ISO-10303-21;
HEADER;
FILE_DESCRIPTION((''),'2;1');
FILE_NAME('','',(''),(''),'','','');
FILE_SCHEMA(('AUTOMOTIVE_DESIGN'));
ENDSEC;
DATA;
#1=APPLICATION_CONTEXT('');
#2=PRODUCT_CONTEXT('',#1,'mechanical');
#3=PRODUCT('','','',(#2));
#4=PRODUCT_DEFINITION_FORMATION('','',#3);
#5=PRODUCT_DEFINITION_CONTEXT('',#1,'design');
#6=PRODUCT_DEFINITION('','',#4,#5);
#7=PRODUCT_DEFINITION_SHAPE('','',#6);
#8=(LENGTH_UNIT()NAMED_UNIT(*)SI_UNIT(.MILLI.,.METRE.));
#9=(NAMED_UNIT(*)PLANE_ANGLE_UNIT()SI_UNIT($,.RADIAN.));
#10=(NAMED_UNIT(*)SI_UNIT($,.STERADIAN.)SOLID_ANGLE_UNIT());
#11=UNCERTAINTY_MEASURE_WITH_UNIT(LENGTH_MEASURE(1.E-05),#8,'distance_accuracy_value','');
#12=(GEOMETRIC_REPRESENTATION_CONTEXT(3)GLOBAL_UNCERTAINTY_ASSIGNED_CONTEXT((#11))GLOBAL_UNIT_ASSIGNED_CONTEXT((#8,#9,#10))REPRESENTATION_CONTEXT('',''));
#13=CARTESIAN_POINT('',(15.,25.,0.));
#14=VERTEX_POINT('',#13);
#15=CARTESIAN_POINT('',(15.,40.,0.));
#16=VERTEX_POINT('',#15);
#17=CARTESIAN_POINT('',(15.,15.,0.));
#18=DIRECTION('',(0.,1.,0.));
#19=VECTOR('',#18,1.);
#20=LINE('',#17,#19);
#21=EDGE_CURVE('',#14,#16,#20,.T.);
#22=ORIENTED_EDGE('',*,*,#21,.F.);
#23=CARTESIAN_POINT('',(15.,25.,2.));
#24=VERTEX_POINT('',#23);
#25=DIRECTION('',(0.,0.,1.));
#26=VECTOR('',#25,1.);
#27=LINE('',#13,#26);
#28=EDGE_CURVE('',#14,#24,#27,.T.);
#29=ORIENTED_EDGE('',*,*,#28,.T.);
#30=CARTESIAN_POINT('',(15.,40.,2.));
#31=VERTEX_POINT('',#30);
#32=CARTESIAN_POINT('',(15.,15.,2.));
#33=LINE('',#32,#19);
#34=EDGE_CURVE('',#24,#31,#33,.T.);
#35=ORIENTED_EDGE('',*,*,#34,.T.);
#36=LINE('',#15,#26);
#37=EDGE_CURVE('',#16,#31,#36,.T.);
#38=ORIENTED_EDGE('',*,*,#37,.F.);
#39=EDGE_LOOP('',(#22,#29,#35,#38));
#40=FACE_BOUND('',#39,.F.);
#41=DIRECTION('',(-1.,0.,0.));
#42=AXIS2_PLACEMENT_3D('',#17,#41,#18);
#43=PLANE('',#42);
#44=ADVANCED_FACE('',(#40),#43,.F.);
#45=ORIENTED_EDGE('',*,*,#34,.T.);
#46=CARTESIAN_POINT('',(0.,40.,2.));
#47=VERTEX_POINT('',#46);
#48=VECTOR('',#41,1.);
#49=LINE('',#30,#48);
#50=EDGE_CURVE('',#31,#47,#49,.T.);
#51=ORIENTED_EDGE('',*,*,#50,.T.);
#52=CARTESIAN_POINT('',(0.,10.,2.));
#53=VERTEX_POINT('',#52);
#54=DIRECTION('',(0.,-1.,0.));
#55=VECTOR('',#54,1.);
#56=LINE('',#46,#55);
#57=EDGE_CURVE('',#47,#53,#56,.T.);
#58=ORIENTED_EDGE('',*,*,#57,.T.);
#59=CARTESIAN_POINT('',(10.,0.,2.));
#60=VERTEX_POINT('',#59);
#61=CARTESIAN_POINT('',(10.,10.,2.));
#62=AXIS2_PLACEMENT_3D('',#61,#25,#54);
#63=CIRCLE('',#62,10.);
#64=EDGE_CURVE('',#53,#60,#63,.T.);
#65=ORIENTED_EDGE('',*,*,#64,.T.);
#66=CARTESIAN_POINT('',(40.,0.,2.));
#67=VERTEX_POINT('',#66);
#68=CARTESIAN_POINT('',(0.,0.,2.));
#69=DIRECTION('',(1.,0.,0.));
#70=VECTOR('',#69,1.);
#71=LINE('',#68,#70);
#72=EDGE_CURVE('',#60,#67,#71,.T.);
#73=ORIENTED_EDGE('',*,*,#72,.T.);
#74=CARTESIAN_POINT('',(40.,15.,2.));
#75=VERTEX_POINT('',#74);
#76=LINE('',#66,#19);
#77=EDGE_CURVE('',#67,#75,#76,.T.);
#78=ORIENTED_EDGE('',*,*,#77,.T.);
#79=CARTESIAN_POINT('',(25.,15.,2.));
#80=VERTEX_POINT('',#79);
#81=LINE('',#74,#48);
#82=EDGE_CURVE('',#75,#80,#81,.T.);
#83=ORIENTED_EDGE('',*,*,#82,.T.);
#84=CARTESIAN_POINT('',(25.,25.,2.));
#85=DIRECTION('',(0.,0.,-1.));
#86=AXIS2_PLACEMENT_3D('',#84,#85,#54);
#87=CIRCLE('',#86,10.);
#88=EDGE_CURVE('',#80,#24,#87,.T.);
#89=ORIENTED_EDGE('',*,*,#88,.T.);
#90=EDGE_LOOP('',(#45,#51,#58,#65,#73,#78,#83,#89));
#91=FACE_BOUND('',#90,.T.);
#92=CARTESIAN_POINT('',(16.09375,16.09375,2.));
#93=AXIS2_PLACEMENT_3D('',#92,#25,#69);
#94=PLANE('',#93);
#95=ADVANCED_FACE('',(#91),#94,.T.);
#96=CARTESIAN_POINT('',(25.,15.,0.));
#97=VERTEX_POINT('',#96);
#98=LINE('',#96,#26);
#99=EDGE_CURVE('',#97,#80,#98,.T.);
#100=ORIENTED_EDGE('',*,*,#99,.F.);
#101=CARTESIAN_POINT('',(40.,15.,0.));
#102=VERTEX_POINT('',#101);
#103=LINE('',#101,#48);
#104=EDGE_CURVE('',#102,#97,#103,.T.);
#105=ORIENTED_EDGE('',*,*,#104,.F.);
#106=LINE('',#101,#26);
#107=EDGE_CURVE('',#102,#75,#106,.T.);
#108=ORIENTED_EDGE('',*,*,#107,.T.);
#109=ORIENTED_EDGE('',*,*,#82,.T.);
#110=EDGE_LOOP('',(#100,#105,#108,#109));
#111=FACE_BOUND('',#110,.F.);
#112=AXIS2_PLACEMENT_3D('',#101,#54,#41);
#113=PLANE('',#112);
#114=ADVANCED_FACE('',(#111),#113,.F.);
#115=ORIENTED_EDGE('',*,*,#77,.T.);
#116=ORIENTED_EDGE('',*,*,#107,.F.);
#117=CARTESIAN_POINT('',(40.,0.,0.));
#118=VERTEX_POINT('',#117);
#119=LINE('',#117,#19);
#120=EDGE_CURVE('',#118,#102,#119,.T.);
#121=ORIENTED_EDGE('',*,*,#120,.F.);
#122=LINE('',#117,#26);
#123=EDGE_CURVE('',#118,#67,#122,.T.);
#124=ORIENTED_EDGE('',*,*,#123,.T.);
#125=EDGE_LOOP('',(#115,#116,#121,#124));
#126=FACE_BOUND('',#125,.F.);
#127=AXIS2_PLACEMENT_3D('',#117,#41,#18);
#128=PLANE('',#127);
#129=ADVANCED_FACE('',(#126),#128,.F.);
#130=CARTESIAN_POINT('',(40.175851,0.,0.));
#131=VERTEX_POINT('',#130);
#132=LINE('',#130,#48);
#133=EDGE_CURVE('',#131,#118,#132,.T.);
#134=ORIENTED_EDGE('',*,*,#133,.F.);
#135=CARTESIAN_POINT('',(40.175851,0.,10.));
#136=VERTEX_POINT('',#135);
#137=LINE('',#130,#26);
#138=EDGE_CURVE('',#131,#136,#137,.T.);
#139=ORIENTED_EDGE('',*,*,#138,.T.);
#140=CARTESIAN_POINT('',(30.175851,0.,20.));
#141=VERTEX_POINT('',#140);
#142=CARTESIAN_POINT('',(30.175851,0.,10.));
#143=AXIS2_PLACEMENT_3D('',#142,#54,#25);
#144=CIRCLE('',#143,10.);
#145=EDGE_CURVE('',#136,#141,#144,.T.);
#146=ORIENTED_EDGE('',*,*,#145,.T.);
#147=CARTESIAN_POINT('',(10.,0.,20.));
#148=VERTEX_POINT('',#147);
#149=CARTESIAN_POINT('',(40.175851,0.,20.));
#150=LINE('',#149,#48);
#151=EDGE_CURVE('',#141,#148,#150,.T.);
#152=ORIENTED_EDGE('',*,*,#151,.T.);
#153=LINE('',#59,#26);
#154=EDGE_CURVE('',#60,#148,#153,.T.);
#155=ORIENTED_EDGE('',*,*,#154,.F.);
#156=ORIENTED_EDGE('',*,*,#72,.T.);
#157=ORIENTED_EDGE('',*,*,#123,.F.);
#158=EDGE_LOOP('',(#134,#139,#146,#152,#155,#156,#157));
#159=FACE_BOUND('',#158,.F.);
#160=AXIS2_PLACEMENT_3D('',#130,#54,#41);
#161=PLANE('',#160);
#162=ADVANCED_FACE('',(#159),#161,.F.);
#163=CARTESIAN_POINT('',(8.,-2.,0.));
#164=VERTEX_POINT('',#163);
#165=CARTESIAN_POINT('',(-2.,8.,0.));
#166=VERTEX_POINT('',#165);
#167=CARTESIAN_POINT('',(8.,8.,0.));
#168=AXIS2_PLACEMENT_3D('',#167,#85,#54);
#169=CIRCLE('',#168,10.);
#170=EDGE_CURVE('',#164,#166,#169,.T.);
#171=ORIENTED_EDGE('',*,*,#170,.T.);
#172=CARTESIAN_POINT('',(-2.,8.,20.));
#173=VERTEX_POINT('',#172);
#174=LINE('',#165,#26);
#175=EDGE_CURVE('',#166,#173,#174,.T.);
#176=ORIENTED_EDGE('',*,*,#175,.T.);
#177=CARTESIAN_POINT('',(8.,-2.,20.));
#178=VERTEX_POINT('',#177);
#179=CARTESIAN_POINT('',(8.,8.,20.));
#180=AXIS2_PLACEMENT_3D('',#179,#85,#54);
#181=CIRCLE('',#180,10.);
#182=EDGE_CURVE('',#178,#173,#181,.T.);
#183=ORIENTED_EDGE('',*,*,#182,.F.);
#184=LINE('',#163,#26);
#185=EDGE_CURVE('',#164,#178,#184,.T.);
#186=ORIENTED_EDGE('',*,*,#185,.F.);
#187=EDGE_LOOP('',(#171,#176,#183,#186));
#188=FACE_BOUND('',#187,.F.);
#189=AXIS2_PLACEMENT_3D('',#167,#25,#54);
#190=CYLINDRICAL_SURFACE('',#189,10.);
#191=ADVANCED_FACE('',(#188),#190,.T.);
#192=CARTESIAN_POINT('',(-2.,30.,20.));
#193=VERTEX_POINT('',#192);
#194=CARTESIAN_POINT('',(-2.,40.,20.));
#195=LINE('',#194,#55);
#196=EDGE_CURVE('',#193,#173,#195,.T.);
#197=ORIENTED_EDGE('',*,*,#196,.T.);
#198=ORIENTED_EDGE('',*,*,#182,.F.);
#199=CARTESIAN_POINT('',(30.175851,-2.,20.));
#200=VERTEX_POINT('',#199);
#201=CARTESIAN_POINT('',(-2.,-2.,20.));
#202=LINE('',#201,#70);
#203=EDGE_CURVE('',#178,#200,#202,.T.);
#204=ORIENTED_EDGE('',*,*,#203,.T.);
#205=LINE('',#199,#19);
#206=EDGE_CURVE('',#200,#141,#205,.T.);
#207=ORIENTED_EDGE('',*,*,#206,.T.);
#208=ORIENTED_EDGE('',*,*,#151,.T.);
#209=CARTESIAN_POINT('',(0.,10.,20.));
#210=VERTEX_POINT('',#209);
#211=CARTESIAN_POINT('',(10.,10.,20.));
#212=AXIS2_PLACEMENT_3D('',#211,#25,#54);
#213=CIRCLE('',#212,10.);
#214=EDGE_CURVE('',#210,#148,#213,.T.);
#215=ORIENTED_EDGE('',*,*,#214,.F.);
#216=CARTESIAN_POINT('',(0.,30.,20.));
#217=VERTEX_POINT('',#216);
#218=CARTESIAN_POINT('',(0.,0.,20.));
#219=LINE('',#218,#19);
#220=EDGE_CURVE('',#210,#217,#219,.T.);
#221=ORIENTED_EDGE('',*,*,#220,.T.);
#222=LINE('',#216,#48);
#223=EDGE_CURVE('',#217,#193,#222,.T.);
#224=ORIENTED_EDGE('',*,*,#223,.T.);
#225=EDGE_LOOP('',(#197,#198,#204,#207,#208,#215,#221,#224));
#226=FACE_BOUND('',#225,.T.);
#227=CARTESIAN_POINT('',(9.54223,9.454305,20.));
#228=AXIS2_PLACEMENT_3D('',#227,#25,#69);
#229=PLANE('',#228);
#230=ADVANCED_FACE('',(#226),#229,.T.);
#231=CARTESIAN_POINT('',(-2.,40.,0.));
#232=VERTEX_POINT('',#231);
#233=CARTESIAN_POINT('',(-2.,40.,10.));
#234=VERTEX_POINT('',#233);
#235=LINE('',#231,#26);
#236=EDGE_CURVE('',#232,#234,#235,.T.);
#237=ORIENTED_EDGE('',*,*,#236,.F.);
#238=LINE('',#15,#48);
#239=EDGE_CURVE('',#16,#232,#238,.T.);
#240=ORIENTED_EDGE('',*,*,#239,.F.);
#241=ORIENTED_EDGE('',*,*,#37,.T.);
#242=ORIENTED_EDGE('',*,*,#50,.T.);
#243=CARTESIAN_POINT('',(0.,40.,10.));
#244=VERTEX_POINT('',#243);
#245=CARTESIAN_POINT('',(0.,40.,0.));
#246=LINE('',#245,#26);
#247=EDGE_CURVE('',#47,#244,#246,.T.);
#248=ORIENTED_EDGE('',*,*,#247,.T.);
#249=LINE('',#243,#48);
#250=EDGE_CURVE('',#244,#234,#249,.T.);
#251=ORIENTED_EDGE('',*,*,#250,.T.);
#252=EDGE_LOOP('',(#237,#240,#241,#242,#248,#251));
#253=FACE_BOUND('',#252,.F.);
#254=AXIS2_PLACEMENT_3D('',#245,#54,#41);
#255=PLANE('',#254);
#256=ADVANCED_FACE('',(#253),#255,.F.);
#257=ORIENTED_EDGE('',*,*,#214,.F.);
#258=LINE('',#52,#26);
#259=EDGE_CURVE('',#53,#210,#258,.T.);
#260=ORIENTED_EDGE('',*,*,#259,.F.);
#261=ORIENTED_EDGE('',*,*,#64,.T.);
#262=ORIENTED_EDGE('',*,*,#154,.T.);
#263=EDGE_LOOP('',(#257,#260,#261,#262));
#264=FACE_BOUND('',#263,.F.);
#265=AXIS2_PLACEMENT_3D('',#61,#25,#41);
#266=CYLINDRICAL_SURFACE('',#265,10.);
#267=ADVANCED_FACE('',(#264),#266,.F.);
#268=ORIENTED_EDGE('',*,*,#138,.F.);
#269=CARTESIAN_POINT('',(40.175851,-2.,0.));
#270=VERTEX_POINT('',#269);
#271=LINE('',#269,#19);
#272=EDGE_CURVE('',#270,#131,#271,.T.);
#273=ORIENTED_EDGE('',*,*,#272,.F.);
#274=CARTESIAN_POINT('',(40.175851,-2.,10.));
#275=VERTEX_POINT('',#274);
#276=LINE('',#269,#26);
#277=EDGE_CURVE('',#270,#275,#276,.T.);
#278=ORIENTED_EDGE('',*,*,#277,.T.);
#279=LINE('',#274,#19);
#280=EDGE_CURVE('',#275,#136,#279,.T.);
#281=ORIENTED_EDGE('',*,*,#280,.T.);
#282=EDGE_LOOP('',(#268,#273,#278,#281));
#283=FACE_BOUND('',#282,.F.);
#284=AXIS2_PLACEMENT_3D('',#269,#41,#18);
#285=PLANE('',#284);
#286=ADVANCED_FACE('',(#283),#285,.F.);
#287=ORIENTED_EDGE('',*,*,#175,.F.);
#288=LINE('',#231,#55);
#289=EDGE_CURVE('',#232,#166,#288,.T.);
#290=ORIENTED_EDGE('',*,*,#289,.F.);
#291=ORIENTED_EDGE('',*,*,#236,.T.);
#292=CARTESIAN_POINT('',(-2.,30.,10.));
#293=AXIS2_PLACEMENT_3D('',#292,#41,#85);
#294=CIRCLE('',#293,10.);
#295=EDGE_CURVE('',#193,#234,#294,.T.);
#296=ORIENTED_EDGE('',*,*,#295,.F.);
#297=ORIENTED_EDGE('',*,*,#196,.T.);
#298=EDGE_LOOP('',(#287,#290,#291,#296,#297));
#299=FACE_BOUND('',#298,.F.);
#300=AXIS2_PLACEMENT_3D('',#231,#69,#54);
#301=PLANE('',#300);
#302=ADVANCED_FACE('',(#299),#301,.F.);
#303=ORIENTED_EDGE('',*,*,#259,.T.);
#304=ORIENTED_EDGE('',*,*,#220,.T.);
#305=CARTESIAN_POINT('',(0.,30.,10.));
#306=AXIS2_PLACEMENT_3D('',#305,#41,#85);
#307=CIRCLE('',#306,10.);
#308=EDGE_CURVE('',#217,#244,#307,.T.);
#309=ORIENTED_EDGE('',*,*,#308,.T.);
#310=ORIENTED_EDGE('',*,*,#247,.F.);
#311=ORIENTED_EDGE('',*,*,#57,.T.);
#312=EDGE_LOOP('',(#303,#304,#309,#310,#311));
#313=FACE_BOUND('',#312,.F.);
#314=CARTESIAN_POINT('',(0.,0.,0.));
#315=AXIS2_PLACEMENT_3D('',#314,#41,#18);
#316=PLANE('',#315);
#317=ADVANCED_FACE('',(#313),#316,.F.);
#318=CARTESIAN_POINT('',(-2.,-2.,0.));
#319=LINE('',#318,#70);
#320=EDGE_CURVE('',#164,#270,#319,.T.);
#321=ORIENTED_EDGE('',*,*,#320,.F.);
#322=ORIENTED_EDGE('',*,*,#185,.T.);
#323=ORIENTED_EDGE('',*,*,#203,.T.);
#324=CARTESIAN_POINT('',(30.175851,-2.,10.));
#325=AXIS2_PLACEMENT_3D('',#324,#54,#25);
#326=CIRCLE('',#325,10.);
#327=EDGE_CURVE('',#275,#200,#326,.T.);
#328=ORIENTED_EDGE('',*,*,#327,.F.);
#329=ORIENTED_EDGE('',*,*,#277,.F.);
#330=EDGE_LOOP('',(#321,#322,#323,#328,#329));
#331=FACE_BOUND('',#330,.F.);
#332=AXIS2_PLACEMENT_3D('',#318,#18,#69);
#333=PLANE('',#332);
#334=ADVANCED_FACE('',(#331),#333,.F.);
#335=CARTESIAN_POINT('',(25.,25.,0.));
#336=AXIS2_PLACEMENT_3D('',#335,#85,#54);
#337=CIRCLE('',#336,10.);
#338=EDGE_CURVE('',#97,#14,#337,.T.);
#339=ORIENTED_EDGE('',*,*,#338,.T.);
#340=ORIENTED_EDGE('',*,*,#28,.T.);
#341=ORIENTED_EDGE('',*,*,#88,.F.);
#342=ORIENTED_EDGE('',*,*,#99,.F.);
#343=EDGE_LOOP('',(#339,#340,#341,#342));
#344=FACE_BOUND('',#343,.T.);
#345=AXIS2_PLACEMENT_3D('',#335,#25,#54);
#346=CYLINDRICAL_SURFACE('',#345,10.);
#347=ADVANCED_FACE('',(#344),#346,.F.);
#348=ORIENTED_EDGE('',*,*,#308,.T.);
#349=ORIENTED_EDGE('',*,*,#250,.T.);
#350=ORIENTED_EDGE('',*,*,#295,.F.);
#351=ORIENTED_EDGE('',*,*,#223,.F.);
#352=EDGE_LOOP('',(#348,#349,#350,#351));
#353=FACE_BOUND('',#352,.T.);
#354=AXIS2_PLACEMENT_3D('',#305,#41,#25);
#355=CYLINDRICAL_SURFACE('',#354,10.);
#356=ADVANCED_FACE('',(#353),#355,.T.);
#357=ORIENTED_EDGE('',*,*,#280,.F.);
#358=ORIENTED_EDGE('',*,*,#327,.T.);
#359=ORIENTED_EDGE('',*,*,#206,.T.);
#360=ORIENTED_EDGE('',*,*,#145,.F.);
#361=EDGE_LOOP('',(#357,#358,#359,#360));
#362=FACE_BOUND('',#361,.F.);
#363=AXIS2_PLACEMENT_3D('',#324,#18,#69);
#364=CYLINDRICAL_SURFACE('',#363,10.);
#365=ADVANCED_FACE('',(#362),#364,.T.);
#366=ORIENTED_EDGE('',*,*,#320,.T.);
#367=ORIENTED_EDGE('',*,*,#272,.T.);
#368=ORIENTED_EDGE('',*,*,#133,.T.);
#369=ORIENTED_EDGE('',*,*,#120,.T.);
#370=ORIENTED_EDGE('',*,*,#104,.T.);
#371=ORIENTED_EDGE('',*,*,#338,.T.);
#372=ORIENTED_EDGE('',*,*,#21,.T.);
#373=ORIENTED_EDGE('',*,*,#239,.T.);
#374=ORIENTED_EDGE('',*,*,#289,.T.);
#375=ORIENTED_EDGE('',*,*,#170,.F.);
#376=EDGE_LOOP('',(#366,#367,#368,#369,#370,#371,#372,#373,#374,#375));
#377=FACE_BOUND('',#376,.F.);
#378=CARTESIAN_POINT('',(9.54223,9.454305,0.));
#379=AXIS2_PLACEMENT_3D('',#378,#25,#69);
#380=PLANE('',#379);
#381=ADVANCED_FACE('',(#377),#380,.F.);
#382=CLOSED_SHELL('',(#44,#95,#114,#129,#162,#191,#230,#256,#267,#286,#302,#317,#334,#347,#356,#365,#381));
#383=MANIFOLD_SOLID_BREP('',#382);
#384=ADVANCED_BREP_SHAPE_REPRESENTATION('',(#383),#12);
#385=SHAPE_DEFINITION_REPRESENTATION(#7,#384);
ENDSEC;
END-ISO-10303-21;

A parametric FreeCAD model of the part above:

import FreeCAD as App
import Part
import Sketcher

V = App.Vector
Q = App.Units.Quantity


def edges_at(feature, points):
    """Names of the edges that pass closest to the given points."""
    edges = feature.Shape.Edges
    near = lambda p: min(range(len(edges)), key=lambda i: edges[i].distToShape(Part.Vertex(*p))[0])
    return sorted({f"Edge{near(p) + 1}" for p in points})


def add_polygon(sketch, points):
    """Adds a closed chain of lines whose ends are joined by coincident constraints."""
    first, n = sketch.GeometryCount, len(points)
    for a, b in zip(points, points[1:] + points[:1]):
        sketch.addGeometry(Part.LineSegment(App.Vector(*a, 0), App.Vector(*b, 0)), False)
    for i in range(n):
        sketch.addConstraint(Sketcher.Constraint("Coincident", first + i, 2, first + (i + 1) % n, 1))

doc = App.newDocument("Part")
body = doc.addObject("PartDesign::Body", "Body")

# Sketch on XY plane
sketch1 = doc.addObject("Sketcher::SketchObject", "Sketch")
body.addObject(sketch1)
sketch1.AttachmentSupport = (doc.XY_Plane, [""])
sketch1.MapMode = "FlatFace"
add_polygon(sketch1, [(15, 40), (0, 40), (0, 0), (40, 0), (40, 15), (15, 15)])  # lines 0-5
sketch1.addConstraint([
    Sketcher.Constraint("Horizontal", 0),
    Sketcher.Constraint("Vertical", 1),
    Sketcher.Constraint("Horizontal", 2),
    Sketcher.Constraint("Vertical", 3),
    Sketcher.Constraint("Horizontal", 4),
    Sketcher.Constraint("Vertical", 5),
    Sketcher.Constraint("Coincident", 1, 2, -1, 1),
    Sketcher.Constraint("Equal", 2, 1),
    Sketcher.Constraint("Equal", 0, 3),
    Sketcher.Constraint("DistanceX", 0, 2, 0, 1, Q("15 mm")),
    Sketcher.Constraint("DistanceX", 2, 1, 2, 2, Q("40 mm")),
])
pad1 = doc.addObject("PartDesign::Pad", "Pad")
body.addObject(pad1)
pad1.Profile = sketch1
pad1.Length = 2

# Sketch on XY plane
sketch2 = doc.addObject("Sketcher::SketchObject", "Sketch001")
body.addObject(sketch2)
sketch2.AttachmentSupport = (doc.XY_Plane, [""])
sketch2.MapMode = "FlatFace"
add_polygon(sketch2, [(0, 0), (0, 40), (-2, 40), (-2, -2), (40.2, -2), (40.2, 0)])  # lines 0-5
sketch2.addConstraint([
    Sketcher.Constraint("Vertical", 0),
    Sketcher.Constraint("Horizontal", 1),
    Sketcher.Constraint("Vertical", 2),
    Sketcher.Constraint("Horizontal", 3),
    Sketcher.Constraint("Vertical", 4),
    Sketcher.Constraint("Horizontal", 5),
    Sketcher.Constraint("Coincident", 5, 2, -1, 1),
    Sketcher.Constraint("Equal", 1, 4),
    Sketcher.Constraint("DistanceX", 1, 2, 1, 1, Q("2 mm")),
    Sketcher.Constraint("DistanceY", 0, 1, 0, 2, Q("40 mm")),
    Sketcher.Constraint("DistanceX", 3, 1, 3, 2, Q("42.175851 mm")),
])
pad2 = doc.addObject("PartDesign::Pad", "Pad001")
body.addObject(pad2)
pad2.Profile = sketch2
pad2.Length = 20
doc.recompute()

fillet = doc.addObject("PartDesign::Fillet", "Fillet")
body.addObject(fillet)
fillet.Base = (pad2, edges_at(pad2, [
    (0, 0, 11),
    (15, 15, 1),
    (-2, -2, 10),
    (-1, 40, 20),
    (40.176, -1, 20),
]))
fillet.Radius = 10

doc.recompute()
